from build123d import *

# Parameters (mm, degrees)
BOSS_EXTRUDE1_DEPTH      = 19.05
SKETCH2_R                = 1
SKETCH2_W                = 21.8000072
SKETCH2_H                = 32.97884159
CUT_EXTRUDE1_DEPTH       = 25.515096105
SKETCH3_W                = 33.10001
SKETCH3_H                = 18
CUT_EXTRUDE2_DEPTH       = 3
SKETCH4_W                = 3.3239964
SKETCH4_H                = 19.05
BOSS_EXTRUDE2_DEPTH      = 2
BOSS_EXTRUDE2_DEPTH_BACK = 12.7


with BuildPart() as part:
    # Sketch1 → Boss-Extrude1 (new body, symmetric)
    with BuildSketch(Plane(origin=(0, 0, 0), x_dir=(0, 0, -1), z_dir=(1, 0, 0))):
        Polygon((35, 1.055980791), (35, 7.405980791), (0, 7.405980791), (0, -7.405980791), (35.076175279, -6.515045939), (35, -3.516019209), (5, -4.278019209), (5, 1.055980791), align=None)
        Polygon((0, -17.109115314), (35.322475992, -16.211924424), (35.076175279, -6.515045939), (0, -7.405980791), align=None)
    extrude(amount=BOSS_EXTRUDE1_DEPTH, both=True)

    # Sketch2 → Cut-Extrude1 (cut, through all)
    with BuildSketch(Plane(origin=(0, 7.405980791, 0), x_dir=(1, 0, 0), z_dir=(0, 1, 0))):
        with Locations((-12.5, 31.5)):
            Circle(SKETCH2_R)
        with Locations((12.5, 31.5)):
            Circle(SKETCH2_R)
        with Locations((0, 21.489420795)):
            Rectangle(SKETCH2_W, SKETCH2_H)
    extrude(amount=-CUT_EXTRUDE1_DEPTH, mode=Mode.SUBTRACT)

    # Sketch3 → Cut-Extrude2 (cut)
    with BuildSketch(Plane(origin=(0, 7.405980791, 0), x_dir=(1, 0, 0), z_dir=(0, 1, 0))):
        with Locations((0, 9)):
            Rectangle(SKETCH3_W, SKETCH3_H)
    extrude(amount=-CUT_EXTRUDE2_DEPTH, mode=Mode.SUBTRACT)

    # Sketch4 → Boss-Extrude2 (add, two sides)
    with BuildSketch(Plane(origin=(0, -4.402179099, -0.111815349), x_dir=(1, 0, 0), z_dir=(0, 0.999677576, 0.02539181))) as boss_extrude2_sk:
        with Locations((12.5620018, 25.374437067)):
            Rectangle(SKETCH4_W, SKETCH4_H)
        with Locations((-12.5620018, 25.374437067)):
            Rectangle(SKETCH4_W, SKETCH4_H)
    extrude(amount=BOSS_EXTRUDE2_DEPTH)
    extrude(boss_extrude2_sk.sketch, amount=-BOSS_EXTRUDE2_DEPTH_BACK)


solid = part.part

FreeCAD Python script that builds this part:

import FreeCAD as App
import Part
import Sketcher

V = App.Vector


def add_polygon(sketch, points):
    """Adds a closed chain of lines whose ends are joined by coincident constraints."""
    first, n = sketch.GeometryCount, len(points)
    for a, b in zip(points, points[1:] + points[:1]):
        sketch.addGeometry(Part.LineSegment(App.Vector(*a, 0), App.Vector(*b, 0)), False)
    for i in range(n):
        sketch.addConstraint(Sketcher.Constraint("Coincident", first + i, 2, first + (i + 1) % n, 1))

doc = App.newDocument("Part")
body = doc.addObject("PartDesign::Body", "Body")

# Sketch on YZ plane
sketch1 = body.newObject("Sketcher::SketchObject", "Sketch")
sketch1.AttachmentSupport = (doc.getObject("YZ_Plane"), [""])
sketch1.MapMode = "FlatFace"
add_polygon(sketch1, [(1.055981, -35), (7.405981, -35), (7.405981, 0), (-17.109115, 0), (-16.211924, -35.322476), (-6.515046, -35.076175), (-3.516019, -35), (-4.278019, -5), (1.055981, -5)])  # lines 0-8
sketch1.addConstraint([
    Sketcher.Constraint("Horizontal", 0),
    Sketcher.Constraint("Vertical", 1),
    Sketcher.Constraint("Horizontal", 2),
    Sketcher.Constraint("Horizontal", 7),
    Sketcher.Constraint("Vertical", 8),
    Sketcher.Constraint("PointOnObject", 1, 2, -1),
    Sketcher.Constraint("DistanceY", 1, 1, 1, 2, 35.0),
    Sketcher.Constraint("DistanceY", 8, 2, 8, 1, 30.0),
    Sketcher.Constraint("DistanceY", 5, 2, -1, 1, 35.0),
    Sketcher.Constraint("DistanceX", 0, 1, 0, 2, 6.35),
    Sketcher.Constraint("DistanceX", 7, 1, 7, 2, 5.334),
    Sketcher.Constraint("DistanceX", 5, 2, 0, 2, 10.922),
    Sketcher.Constraint("DistanceY", 3, 2, 4, 2, 0.246301),
    Sketcher.Constraint("Distance", 3, 35.333868),
    Sketcher.Constraint("DistanceX", 2, 2, 2, 1, 24.515096),
    Sketcher.Constraint("DistanceX", -1, 1, 0, 2, 7.405981),
    Sketcher.Constraint("DistanceX", 2, 2, 3, 2, 0.897191),
    Sketcher.Constraint("DistanceX", 3, 2, 4, 2, 9.696878),
])
pad1 = body.newObject("PartDesign::Pad", "Pad")
pad1.Profile = sketch1
pad1.Length = 38.1
pad1.Midplane = True

# Sketch on XZ plane
sketch2 = body.newObject("Sketcher::SketchObject", "Sketch001")
sketch2.AttachmentSupport = (doc.getObject("XZ_Plane"), [""])
sketch2.MapMode = "FlatFace"
sketch2.AttachmentOffset = App.Placement(V(0, 0, -7.405981), App.Rotation())
sketch2.addGeometry(Part.Circle(V(-12.5, -31.5, 0), V(0, 0, 1), 1), False)  # 0
sketch2.addGeometry(Part.Circle(V(12.5, -31.5, 0), V(0, 0, 1), 1), False)  # 1
add_polygon(sketch2, [(-10.9, -38), (-10.9, -5), (10.9, -5), (10.9, -38)])  # lines 2-5
sketch2.addConstraint([
    Sketcher.Constraint("Vertical", 2),
    Sketcher.Constraint("Horizontal", 3),
    Sketcher.Constraint("Vertical", 4),
    Sketcher.Constraint("Horizontal", 5),
    Sketcher.Constraint("Equal", 0, 1),
    Sketcher.Constraint("Symmetric", 0, 3, 1, 3, -2),
    Sketcher.Constraint("Diameter", 0, 2.0),
    Sketcher.Constraint("DistanceY", 2, 2, -1, 1, 5.0),
    Sketcher.Constraint("DistanceX", 0, 3, 1, 3, 25.0),
    Sketcher.Constraint("DistanceY", 0, 3, -1, 1, 31.5),
    Sketcher.Constraint("DistanceY", 2, 1, 2, 2, 32.978842),
    Sketcher.Constraint("DistanceX", 3, 1, 3, 2, 21.800007),
    Sketcher.Constraint("DistanceX", 2, 2, -1, 1, 10.900004),
])
pocket1 = body.newObject("PartDesign::Pocket", "Pocket")
pocket1.Profile = sketch2
pocket1.Type = "ThroughAll"
pocket1.Reversed = True

# Sketch on XZ plane
sketch3 = body.newObject("Sketcher::SketchObject", "Sketch002")
sketch3.AttachmentSupport = (doc.getObject("XZ_Plane"), [""])
sketch3.MapMode = "FlatFace"
sketch3.AttachmentOffset = App.Placement(V(0, 0, -7.405981), App.Rotation())
add_polygon(sketch3, [(-17, -18), (-17, 0), (17, 0), (17, -18)])  # lines 0-3
sketch3.addConstraint([
    Sketcher.Constraint("Vertical", 0),
    Sketcher.Constraint("Horizontal", 1),
    Sketcher.Constraint("Vertical", 2),
    Sketcher.Constraint("Horizontal", 3),
    Sketcher.Constraint("Symmetric", 0, 2, 1, 2, -1, 1),
    Sketcher.Constraint("DistanceY", 0, 1, 0, 2, 18.0),
    Sketcher.Constraint("DistanceX", 1, 1, 1, 2, 33.10001),
])
pocket2 = body.newObject("PartDesign::Pocket", "Pocket001")
pocket2.Profile = sketch3
pocket2.Length = 3
pocket2.Reversed = True

# Sketch on an angled plane
sketch4 = body.newObject("Sketcher::SketchObject", "Sketch003")
sketch4.Placement = App.Placement(V(0, -4.402179, -0.111815), App.Rotation(V(1, 0, 0), V(0, 0.02539181, -0.999677576), V(0, 0.999677576, 0.02539181), "ZXY"))
add_polygon(sketch4, [(10.9, 34.9), (10.9, 15.8), (14.2, 15.8), (14.2, 34.9)])  # lines 0-3
add_polygon(sketch4, [(-14.2, 34.9), (-14.2, 15.8), (-10.9, 15.8), (-10.9, 34.9)])  # lines 4-7
sketch4.addConstraint([
    Sketcher.Constraint("Vertical", 0),
    Sketcher.Constraint("Horizontal", 1),
    Sketcher.Constraint("Vertical", 2),
    Sketcher.Constraint("Horizontal", 3),
    Sketcher.Constraint("Vertical", 4),
    Sketcher.Constraint("Horizontal", 5),
    Sketcher.Constraint("Vertical", 6),
    Sketcher.Constraint("Horizontal", 7),
    Sketcher.Constraint("Symmetric", 1, 2, 4, 2, -2),
    Sketcher.Constraint("Symmetric", 3, 2, 6, 2, -2),
    Sketcher.Constraint("DistanceY", 0, 2, 0, 1, 19.05),
    Sketcher.Constraint("DistanceX", -1, 1, 1, 2, 14.224),
    Sketcher.Constraint("DistanceX", 1, 1, 1, 2, 3.323996),
    Sketcher.Constraint("DistanceY", -1, 1, 0, 2, 15.849437),
])
pad2 = body.newObject("PartDesign::Pad", "Pad001")
pad2.Profile = sketch4
pad2.Type = "TwoLengths"
pad2.Length = 2
pad2.Length2 = 12.7

doc.recompute()
